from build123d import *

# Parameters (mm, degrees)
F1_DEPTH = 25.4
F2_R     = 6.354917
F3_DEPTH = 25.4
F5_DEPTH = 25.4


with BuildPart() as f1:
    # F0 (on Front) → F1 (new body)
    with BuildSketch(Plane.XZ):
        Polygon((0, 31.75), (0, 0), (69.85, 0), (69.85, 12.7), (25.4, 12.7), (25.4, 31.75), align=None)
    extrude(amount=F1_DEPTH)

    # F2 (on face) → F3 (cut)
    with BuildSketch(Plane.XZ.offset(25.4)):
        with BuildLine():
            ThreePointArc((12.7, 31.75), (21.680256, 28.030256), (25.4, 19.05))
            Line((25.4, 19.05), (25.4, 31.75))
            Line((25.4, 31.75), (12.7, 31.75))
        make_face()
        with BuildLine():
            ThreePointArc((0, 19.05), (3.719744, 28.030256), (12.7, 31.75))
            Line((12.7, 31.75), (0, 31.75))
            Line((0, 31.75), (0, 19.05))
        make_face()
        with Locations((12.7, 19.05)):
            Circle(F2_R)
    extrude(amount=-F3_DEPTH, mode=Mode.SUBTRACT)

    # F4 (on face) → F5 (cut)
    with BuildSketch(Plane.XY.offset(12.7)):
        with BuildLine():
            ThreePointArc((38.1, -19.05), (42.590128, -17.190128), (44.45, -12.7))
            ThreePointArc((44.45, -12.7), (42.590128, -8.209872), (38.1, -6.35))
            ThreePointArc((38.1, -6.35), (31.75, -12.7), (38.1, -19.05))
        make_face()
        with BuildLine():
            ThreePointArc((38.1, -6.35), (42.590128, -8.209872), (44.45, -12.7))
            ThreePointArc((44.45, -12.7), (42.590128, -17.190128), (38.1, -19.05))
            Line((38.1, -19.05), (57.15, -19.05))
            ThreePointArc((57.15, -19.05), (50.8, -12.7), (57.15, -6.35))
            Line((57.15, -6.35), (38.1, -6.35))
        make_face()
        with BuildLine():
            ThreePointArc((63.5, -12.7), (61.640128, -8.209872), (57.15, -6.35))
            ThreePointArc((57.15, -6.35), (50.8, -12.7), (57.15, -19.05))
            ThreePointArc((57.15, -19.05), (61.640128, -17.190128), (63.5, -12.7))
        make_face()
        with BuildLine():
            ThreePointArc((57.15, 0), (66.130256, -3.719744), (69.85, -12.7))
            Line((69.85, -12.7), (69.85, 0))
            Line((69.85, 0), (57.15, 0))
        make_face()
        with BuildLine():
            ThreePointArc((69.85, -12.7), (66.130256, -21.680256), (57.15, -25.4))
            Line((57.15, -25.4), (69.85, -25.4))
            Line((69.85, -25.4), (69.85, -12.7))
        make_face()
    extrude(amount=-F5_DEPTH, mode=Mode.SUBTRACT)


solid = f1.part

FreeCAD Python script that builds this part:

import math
import FreeCAD as App
import Part
import Sketcher

V = App.Vector
Q = App.Units.Quantity


def add_polygon(sketch, points):
    """Adds a closed chain of lines whose ends are joined by coincident constraints."""
    first, n = sketch.GeometryCount, len(points)
    for a, b in zip(points, points[1:] + points[:1]):
        sketch.addGeometry(Part.LineSegment(App.Vector(*a, 0), App.Vector(*b, 0)), False)
    for i in range(n):
        sketch.addConstraint(Sketcher.Constraint("Coincident", first + i, 2, first + (i + 1) % n, 1))

doc = App.newDocument("Part")
params = doc.addObject("Spreadsheet::Sheet", "Params")
for row, (alias, value) in enumerate([
    ("sketch1_width", "1 in"),
    ("sketch1_height", "0.5 in"),
    ("sketch1_width2", "2.75 in"),
    ("sketch1_height2", "1.25 in"),
    ("pad1_length", "1 in"),
    ("sketch2_radius", "0.5 in"),
    ("pocket1_length", "1 in"),
    ("sketch3_radius", "0.5 in"),
    ("sketch3_radius2", "0.25 in"),
    ("sketch3_width", "0.75 in"),
    ("pocket2_length", "1 in"),
], start=1):
    params.set(f"A{row}", alias)
    params.set(f"B{row}", "=" + value)
    params.setAlias(f"B{row}", alias)

body = doc.addObject("PartDesign::Body", "Body")

sketch1 = doc.addObject("Sketcher::SketchObject", "Sketch")
body.addObject(sketch1)
sketch1.AttachmentSupport = (doc.XZ_Plane, [""])
sketch1.MapMode = "FlatFace"
add_polygon(sketch1, [(0, 32), (0, 0), (70, 0), (70, 13), (25, 13), (25, 32)])
sketch1.addConstraint(Sketcher.Constraint("Vertical", 0))
sketch1.addConstraint(Sketcher.Constraint("Horizontal", 1))
sketch1.addConstraint(Sketcher.Constraint("Vertical", 2))
sketch1.addConstraint(Sketcher.Constraint("Horizontal", 3))
sketch1.addConstraint(Sketcher.Constraint("Vertical", 4))
sketch1.addConstraint(Sketcher.Constraint("Horizontal", 5))
sketch1.addConstraint(Sketcher.Constraint("Coincident", 0, 2, -1, 1))
sketch1.addConstraint(Sketcher.Constraint("DistanceX", 5, 2, 5, 1, Q("1 in")))
sketch1.addConstraint(Sketcher.Constraint("DistanceY", 2, 1, 2, 2, Q("0.5 in")))
sketch1.addConstraint(Sketcher.Constraint("DistanceX", 1, 1, 1, 2, Q("2.75 in")))
sketch1.addConstraint(Sketcher.Constraint("DistanceY", 0, 2, 0, 1, Q("1.25 in")))
sketch1.setExpression("Constraints[13]", "Params.sketch1_width")
sketch1.setExpression("Constraints[14]", "Params.sketch1_height")
sketch1.setExpression("Constraints[15]", "Params.sketch1_width2")
sketch1.setExpression("Constraints[16]", "Params.sketch1_height2")
pad1 = doc.addObject("PartDesign::Pad", "Pad")
body.addObject(pad1)
pad1.Profile = sketch1
pad1.setExpression("Length", "Params.pad1_length")

sketch2 = doc.addObject("Sketcher::SketchObject", "Sketch001")
body.addObject(sketch2)
sketch2.AttachmentSupport = (doc.XZ_Plane, [""])
sketch2.MapMode = "FlatFace"
sketch2.AttachmentOffset = App.Placement(V(0, 0, 1 * 25.4), App.Rotation())
sketch2.addGeometry(Part.ArcOfCircle(Part.Circle(V(13, 19, 0), V(0, 0, 1), 13), math.radians(0), math.radians(90)), False)
sketch2.addGeometry(Part.LineSegment(V(25, 19, 0), V(25, 32, 0)), False)
sketch2.addGeometry(Part.LineSegment(V(25, 32, 0), V(13, 32, 0)), False)
sketch2.addGeometry(Part.ArcOfCircle(Part.Circle(V(13, 19, 0), V(0, 0, 1), 13), math.radians(90), math.radians(180)), False)
sketch2.addGeometry(Part.LineSegment(V(13, 32, 0), V(0, 32, 0)), False)
sketch2.addGeometry(Part.LineSegment(V(0, 32, 0), V(0, 19, 0)), False)
sketch2.addGeometry(Part.Circle(V(13, 19, 0), V(0, 0, 1), 6), False)
sketch2.addConstraint(Sketcher.Constraint("Tangent", 0, 1, 1, 1))
sketch2.addConstraint(Sketcher.Constraint("Coincident", 1, 2, 2, 1))
sketch2.addConstraint(Sketcher.Constraint("Tangent", 2, 2, 0, 2))
sketch2.addConstraint(Sketcher.Constraint("Tangent", 3, 1, 4, 1))
sketch2.addConstraint(Sketcher.Constraint("Coincident", 4, 2, 5, 1))
sketch2.addConstraint(Sketcher.Constraint("Tangent", 5, 2, 3, 2))
sketch2.addConstraint(Sketcher.Constraint("Vertical", 1))
sketch2.addConstraint(Sketcher.Constraint("Horizontal", 2))
sketch2.addConstraint(Sketcher.Constraint("Horizontal", 4))
sketch2.addConstraint(Sketcher.Constraint("Vertical", 5))
sketch2.addConstraint(Sketcher.Constraint("Coincident", 3, 3, 0, 3))
sketch2.addConstraint(Sketcher.Constraint("Coincident", 6, 3, 0, 3))
sketch2.addConstraint(Sketcher.Constraint("Equal", 0, 3))
sketch2.addConstraint(Sketcher.Constraint("PointOnObject", 4, 2, -2))
sketch2.addConstraint(Sketcher.Constraint("Radius", 0, Q("0.5 in")))
sketch2.addConstraint(Sketcher.Constraint("DistanceY", -1, 1, 0, 3, Q("0.75 in")))
sketch2.addConstraint(Sketcher.Constraint("Diameter", 6, Q("12.709834 mm")))
sketch2.setExpression("Constraints[14]", "Params.sketch2_radius")
pocket1 = doc.addObject("PartDesign::Pocket", "Pocket")
body.addObject(pocket1)
pocket1.Profile = sketch2
pocket1.setExpression("Length", "Params.pocket1_length")

sketch3 = doc.addObject("Sketcher::SketchObject", "Sketch002")
body.addObject(sketch3)
sketch3.AttachmentSupport = (doc.XY_Plane, [""])
sketch3.MapMode = "FlatFace"
sketch3.AttachmentOffset = App.Placement(V(0, 0, 0.5 * 25.4), App.Rotation())
sketch3.addGeometry(Part.ArcOfCircle(Part.Circle(V(38, -13, 0), V(0, 0, 1), 6), math.radians(90), math.radians(270)), False)
sketch3.addGeometry(Part.LineSegment(V(38, -19, 0), V(57, -19, 0)), False)
sketch3.addGeometry(Part.ArcOfCircle(Part.Circle(V(57, -13, 0), V(0, 0, 1), 6), math.radians(-90), math.radians(0)), False)
sketch3.addGeometry(Part.ArcOfCircle(Part.Circle(V(57, -13, 0), V(0, 0, 1), 6), math.radians(0), math.radians(90)), False)
sketch3.addGeometry(Part.LineSegment(V(57, -6, 0), V(38, -6, 0)), False)
sketch3.addGeometry(Part.ArcOfCircle(Part.Circle(V(57, -13, 0), V(0, 0, 1), 13), math.radians(0), math.radians(90)), False)
sketch3.addGeometry(Part.LineSegment(V(70, -13, 0), V(70, 0, 0)), False)
sketch3.addGeometry(Part.LineSegment(V(70, 0, 0), V(57, 0, 0)), False)
sketch3.addGeometry(Part.ArcOfCircle(Part.Circle(V(57, -13, 0), V(0, 0, 1), 13), math.radians(-90), math.radians(0)), False)
sketch3.addGeometry(Part.LineSegment(V(57, -25, 0), V(70, -25, 0)), False)
sketch3.addGeometry(Part.LineSegment(V(70, -25, 0), V(70, -13, 0)), False)
sketch3.addConstraint(Sketcher.Constraint("Tangent", 0, 2, 1, 1))
sketch3.addConstraint(Sketcher.Constraint("Tangent", 1, 2, 2, 1))
sketch3.addConstraint(Sketcher.Constraint("Tangent", 2, 2, 3, 1))
sketch3.addConstraint(Sketcher.Constraint("Tangent", 3, 2, 4, 1))
sketch3.addConstraint(Sketcher.Constraint("Tangent", 4, 2, 0, 1))
sketch3.addConstraint(Sketcher.Constraint("Tangent", 5, 1, 6, 1))
sketch3.addConstraint(Sketcher.Constraint("Coincident", 6, 2, 7, 1))
sketch3.addConstraint(Sketcher.Constraint("Tangent", 7, 2, 5, 2))
sketch3.addConstraint(Sketcher.Constraint("Tangent", 8, 1, 9, 1))
sketch3.addConstraint(Sketcher.Constraint("Coincident", 9, 2, 10, 1))
sketch3.addConstraint(Sketcher.Constraint("Tangent", 10, 2, 8, 2))
sketch3.addConstraint(Sketcher.Constraint("Horizontal", 1))
sketch3.addConstraint(Sketcher.Constraint("Horizontal", 4))
sketch3.addConstraint(Sketcher.Constraint("Vertical", 6))
sketch3.addConstraint(Sketcher.Constraint("Horizontal", 7))
sketch3.addConstraint(Sketcher.Constraint("Horizontal", 9))
sketch3.addConstraint(Sketcher.Constraint("Vertical", 10))
sketch3.addConstraint(Sketcher.Constraint("Coincident", 5, 3, 2, 3))
sketch3.addConstraint(Sketcher.Constraint("Coincident", 8, 3, 2, 3))
sketch3.addConstraint(Sketcher.Constraint("Equal", 0, 2))
sketch3.addConstraint(Sketcher.Constraint("Equal", 5, 8))
sketch3.addConstraint(Sketcher.Constraint("PointOnObject", 6, 2, -1))
sketch3.addConstraint(Sketcher.Constraint("Horizontal", 8, 3, 2, 2))
sketch3.addConstraint(Sketcher.Constraint("Radius", 5, Q("0.5 in")))
sketch3.addConstraint(Sketcher.Constraint("Radius", 0, Q("0.25 in")))
sketch3.addConstraint(Sketcher.Constraint("DistanceX", 1, 1, 1, 2, Q("0.75 in")))
sketch3.addConstraint(Sketcher.Constraint("DistanceX", -1, 1, 0, 3, Q("1.5 in")))
sketch3.setExpression("Constraints[23]", "Params.sketch3_radius")
sketch3.setExpression("Constraints[24]", "Params.sketch3_radius2")
sketch3.setExpression("Constraints[25]", "Params.sketch3_width")
pocket2 = doc.addObject("PartDesign::Pocket", "Pocket001")
body.addObject(pocket2)
pocket2.Profile = sketch3
pocket2.setExpression("Length", "Params.pocket2_length")

doc.recompute()
